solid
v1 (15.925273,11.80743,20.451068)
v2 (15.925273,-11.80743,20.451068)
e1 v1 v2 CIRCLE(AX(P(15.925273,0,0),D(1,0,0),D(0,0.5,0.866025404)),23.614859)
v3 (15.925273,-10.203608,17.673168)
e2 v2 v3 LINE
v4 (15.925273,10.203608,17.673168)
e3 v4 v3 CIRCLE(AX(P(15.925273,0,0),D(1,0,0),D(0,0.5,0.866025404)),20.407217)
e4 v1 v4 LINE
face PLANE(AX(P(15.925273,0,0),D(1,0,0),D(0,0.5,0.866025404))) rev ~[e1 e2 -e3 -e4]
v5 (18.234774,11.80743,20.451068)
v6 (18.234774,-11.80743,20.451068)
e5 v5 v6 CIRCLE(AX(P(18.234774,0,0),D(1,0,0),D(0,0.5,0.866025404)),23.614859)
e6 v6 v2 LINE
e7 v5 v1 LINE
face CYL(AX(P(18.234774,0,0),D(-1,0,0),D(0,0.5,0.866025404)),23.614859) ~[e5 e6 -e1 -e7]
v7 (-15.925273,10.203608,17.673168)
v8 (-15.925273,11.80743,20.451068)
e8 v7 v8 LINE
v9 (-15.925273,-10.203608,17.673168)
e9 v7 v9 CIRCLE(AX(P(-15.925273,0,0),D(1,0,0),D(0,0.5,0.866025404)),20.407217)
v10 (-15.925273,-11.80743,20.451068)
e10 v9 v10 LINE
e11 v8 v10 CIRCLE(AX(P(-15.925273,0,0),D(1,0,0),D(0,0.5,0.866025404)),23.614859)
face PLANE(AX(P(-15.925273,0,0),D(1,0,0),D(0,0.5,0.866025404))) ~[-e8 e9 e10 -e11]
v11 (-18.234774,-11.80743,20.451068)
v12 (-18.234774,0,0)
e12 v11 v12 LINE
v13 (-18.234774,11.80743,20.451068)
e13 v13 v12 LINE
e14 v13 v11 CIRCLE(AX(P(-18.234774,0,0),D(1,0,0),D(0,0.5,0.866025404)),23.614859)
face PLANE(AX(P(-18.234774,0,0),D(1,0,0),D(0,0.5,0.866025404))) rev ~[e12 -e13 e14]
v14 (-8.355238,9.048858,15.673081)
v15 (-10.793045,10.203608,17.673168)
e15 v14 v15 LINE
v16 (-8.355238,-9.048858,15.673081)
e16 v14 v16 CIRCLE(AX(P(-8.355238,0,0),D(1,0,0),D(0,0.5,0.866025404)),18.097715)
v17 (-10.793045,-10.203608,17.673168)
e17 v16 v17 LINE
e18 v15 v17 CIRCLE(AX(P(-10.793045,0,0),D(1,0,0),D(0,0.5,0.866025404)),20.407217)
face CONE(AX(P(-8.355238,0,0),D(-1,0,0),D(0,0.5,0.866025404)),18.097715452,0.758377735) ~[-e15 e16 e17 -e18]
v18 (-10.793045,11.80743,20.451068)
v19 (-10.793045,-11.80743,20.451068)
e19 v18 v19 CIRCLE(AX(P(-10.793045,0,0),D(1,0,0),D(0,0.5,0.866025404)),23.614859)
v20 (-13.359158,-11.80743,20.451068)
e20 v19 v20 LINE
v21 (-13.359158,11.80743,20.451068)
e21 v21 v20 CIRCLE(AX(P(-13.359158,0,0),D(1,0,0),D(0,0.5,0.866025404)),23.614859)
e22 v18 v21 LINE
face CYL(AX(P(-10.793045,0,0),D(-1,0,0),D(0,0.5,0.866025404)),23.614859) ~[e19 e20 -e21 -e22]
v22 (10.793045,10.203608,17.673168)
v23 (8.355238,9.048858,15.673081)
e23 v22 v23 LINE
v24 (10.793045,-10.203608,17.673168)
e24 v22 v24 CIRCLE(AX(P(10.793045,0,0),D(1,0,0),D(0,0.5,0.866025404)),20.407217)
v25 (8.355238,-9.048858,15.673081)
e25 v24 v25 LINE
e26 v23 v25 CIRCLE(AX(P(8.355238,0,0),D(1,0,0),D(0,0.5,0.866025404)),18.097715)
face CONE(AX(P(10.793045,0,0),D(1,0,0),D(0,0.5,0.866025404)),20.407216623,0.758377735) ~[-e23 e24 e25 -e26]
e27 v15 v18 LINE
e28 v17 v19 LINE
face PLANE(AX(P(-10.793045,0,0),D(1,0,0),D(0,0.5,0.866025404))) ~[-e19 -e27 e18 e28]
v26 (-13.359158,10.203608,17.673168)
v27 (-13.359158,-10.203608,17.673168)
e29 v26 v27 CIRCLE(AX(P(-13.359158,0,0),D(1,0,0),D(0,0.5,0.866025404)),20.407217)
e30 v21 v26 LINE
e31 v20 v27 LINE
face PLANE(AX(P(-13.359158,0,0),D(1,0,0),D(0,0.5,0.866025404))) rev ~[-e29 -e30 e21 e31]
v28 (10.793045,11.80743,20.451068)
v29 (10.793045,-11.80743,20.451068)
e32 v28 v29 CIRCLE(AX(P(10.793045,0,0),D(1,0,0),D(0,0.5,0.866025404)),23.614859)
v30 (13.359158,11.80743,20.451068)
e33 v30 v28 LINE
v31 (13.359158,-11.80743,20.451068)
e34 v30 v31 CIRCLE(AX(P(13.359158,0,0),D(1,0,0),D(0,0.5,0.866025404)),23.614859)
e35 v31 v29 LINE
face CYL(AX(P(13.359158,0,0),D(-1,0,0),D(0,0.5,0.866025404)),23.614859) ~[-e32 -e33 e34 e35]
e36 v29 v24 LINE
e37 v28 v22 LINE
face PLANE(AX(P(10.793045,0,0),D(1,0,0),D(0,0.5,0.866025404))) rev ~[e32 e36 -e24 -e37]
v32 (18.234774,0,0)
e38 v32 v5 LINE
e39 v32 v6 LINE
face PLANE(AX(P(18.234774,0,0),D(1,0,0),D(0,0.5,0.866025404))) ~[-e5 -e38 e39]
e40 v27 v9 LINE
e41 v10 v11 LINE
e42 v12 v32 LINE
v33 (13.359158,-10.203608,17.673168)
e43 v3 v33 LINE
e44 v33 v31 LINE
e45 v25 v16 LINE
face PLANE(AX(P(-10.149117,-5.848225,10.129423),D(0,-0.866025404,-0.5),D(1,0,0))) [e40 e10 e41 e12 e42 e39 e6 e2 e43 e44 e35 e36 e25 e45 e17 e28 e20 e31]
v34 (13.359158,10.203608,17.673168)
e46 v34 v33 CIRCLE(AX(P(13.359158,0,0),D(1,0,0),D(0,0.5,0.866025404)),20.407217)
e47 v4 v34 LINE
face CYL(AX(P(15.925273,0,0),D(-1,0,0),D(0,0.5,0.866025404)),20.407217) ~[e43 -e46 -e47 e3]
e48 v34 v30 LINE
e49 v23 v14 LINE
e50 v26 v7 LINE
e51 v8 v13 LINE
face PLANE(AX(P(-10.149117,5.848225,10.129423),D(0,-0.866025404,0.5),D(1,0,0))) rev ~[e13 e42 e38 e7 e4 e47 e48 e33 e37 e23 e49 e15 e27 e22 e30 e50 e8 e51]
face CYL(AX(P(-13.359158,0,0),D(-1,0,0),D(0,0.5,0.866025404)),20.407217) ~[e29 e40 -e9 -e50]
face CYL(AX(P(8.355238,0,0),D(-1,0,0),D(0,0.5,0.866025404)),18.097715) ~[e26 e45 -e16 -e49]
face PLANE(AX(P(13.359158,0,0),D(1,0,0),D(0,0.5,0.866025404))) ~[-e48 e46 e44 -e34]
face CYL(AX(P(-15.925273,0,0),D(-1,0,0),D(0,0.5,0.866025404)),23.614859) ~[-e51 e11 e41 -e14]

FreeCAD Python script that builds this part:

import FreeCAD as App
import Part
import Sketcher

V = App.Vector

doc = App.newDocument("Part")
body = doc.addObject("PartDesign::Body", "Body")

# Sketch on an angled plane
sketch1 = doc.addObject("Sketcher::SketchObject", "Sketch")
body.addObject(sketch1)
sketch1.Placement = App.Placement(V(0, 0, 0), App.Rotation(V(1, 0, 0), V(0, 0.5, 0.866025404), V(0, -0.866025404, 0.5), "ZXY"))
sketch1.addGeometry([
    Part.LineSegment(V(-18.234774, 0, 0), V(18.234774, 0, 0)),  # 0
    Part.LineSegment(V(18.234774, 0, 0), V(18.234774, 23.614859, 0)),  # 1
    Part.LineSegment(V(18.234774, 23.614859, 0), V(15.925273, 23.614859, 0)),  # 2
    Part.LineSegment(V(15.925273, 23.614859, 0), V(15.925273, 20.407217, 0)),  # 3
    Part.LineSegment(V(15.925273, 20.407217, 0), V(13.359158, 20.407217, 0)),  # 4
    Part.LineSegment(V(13.359158, 20.407217, 0), V(13.359158, 23.614859, 0)),  # 5
    Part.LineSegment(V(13.359158, 23.614859, 0), V(10.793045, 23.614859, 0)),  # 6
    Part.LineSegment(V(10.793045, 23.614859, 0), V(10.793045, 20.407217, 0)),  # 7
    Part.LineSegment(V(10.793045, 20.407217, 0), V(8.355238, 18.097715, 0)),  # 8
    Part.LineSegment(V(8.355238, 18.097715, 0), V(-8.355238, 18.097715, 0)),  # 9
    Part.LineSegment(V(-8.355238, 18.097715, 0), V(-10.793045, 20.407217, 0)),  # 10
    Part.LineSegment(V(-10.793045, 20.407217, 0), V(-10.793045, 23.614859, 0)),  # 11
    Part.LineSegment(V(-10.793045, 23.614859, 0), V(-13.359158, 23.614859, 0)),  # 12
    Part.LineSegment(V(-13.359158, 23.614859, 0), V(-13.359158, 20.407217, 0)),  # 13
    Part.LineSegment(V(-13.359158, 20.407217, 0), V(-15.925273, 20.407217, 0)),  # 14
    Part.LineSegment(V(-15.925273, 20.407217, 0), V(-15.925273, 23.614859, 0)),  # 15
    Part.LineSegment(V(-15.925273, 23.614859, 0), V(-18.234774, 23.614859, 0)),  # 16
    Part.LineSegment(V(-18.234774, 23.614859, 0), V(-18.234774, 0, 0)),  # 17
], False)
sketch1.addConstraint([
    Sketcher.Constraint("Coincident", 0, 2, 1, 1),
    Sketcher.Constraint("Coincident", 1, 2, 2, 1),
    Sketcher.Constraint("Coincident", 2, 2, 3, 1),
    Sketcher.Constraint("Coincident", 3, 2, 4, 1),
    Sketcher.Constraint("Coincident", 4, 2, 5, 1),
    Sketcher.Constraint("Coincident", 5, 2, 6, 1),
    Sketcher.Constraint("Coincident", 6, 2, 7, 1),
    Sketcher.Constraint("Coincident", 7, 2, 8, 1),
    Sketcher.Constraint("Coincident", 8, 2, 9, 1),
    Sketcher.Constraint("Coincident", 9, 2, 10, 1),
    Sketcher.Constraint("Coincident", 10, 2, 11, 1),
    Sketcher.Constraint("Coincident", 11, 2, 12, 1),
    Sketcher.Constraint("Coincident", 12, 2, 13, 1),
    Sketcher.Constraint("Coincident", 13, 2, 14, 1),
    Sketcher.Constraint("Coincident", 14, 2, 15, 1),
    Sketcher.Constraint("Coincident", 15, 2, 16, 1),
    Sketcher.Constraint("Coincident", 16, 2, 17, 1),
    Sketcher.Constraint("Coincident", 17, 2, 0, 1),
    Sketcher.Constraint("Horizontal", 0),
    Sketcher.Constraint("Vertical", 1),
    Sketcher.Constraint("Horizontal", 2),
    Sketcher.Constraint("Vertical", 3),
    Sketcher.Constraint("Horizontal", 4),
    Sketcher.Constraint("Vertical", 5),
    Sketcher.Constraint("Horizontal", 6),
    Sketcher.Constraint("Vertical", 7),
    Sketcher.Constraint("Horizontal", 9),
    Sketcher.Constraint("Vertical", 11),
    Sketcher.Constraint("Horizontal", 12),
    Sketcher.Constraint("Vertical", 13),
    Sketcher.Constraint("Horizontal", 14),
    Sketcher.Constraint("Vertical", 15),
    Sketcher.Constraint("Horizontal", 16),
    Sketcher.Constraint("Vertical", 17),
    Sketcher.Constraint("Symmetric", 0, 2, 17, 2, -1, 1),
    Sketcher.Constraint("Symmetric", 7, 2, 10, 2, -2),
    Sketcher.Constraint("Symmetric", 5, 2, 12, 2, -2),
    Sketcher.Constraint("Symmetric", 3, 2, 14, 2, -2),
    Sketcher.Constraint("Horizontal", 2, 2, 5, 2),
    Sketcher.Constraint("Horizontal", 4, 2, 7, 2),
    Sketcher.Constraint("Horizontal", 12, 2, 15, 2),
    Sketcher.Constraint("Equal", 4, 6),
    Sketcher.Constraint("Equal", 8, 10),
    Sketcher.Constraint("DistanceX", 2, 2, 2, 1, 2.309501),
    Sketcher.Constraint("DistanceX", 0, 1, 0, 2, 36.469549),
    Sketcher.Constraint("DistanceY", 1, 1, 1, 2, 23.614859),
    Sketcher.Constraint("DistanceY", 8, 2, 7, 2, 2.309501),
    Sketcher.Constraint("Distance", 8, 3.358079),
    Sketcher.Constraint("DistanceX", 4, 2, 4, 1, 2.566115),
    Sketcher.Constraint("DistanceY", 3, 2, 3, 1, 3.207643),
])
revolution = doc.addObject("PartDesign::Revolution", "Revolution")
body.addObject(revolution)
revolution.Profile = sketch1
revolution.ReferenceAxis = (sketch1, ["H_Axis"])
revolution.Angle = 60

doc.recompute()
